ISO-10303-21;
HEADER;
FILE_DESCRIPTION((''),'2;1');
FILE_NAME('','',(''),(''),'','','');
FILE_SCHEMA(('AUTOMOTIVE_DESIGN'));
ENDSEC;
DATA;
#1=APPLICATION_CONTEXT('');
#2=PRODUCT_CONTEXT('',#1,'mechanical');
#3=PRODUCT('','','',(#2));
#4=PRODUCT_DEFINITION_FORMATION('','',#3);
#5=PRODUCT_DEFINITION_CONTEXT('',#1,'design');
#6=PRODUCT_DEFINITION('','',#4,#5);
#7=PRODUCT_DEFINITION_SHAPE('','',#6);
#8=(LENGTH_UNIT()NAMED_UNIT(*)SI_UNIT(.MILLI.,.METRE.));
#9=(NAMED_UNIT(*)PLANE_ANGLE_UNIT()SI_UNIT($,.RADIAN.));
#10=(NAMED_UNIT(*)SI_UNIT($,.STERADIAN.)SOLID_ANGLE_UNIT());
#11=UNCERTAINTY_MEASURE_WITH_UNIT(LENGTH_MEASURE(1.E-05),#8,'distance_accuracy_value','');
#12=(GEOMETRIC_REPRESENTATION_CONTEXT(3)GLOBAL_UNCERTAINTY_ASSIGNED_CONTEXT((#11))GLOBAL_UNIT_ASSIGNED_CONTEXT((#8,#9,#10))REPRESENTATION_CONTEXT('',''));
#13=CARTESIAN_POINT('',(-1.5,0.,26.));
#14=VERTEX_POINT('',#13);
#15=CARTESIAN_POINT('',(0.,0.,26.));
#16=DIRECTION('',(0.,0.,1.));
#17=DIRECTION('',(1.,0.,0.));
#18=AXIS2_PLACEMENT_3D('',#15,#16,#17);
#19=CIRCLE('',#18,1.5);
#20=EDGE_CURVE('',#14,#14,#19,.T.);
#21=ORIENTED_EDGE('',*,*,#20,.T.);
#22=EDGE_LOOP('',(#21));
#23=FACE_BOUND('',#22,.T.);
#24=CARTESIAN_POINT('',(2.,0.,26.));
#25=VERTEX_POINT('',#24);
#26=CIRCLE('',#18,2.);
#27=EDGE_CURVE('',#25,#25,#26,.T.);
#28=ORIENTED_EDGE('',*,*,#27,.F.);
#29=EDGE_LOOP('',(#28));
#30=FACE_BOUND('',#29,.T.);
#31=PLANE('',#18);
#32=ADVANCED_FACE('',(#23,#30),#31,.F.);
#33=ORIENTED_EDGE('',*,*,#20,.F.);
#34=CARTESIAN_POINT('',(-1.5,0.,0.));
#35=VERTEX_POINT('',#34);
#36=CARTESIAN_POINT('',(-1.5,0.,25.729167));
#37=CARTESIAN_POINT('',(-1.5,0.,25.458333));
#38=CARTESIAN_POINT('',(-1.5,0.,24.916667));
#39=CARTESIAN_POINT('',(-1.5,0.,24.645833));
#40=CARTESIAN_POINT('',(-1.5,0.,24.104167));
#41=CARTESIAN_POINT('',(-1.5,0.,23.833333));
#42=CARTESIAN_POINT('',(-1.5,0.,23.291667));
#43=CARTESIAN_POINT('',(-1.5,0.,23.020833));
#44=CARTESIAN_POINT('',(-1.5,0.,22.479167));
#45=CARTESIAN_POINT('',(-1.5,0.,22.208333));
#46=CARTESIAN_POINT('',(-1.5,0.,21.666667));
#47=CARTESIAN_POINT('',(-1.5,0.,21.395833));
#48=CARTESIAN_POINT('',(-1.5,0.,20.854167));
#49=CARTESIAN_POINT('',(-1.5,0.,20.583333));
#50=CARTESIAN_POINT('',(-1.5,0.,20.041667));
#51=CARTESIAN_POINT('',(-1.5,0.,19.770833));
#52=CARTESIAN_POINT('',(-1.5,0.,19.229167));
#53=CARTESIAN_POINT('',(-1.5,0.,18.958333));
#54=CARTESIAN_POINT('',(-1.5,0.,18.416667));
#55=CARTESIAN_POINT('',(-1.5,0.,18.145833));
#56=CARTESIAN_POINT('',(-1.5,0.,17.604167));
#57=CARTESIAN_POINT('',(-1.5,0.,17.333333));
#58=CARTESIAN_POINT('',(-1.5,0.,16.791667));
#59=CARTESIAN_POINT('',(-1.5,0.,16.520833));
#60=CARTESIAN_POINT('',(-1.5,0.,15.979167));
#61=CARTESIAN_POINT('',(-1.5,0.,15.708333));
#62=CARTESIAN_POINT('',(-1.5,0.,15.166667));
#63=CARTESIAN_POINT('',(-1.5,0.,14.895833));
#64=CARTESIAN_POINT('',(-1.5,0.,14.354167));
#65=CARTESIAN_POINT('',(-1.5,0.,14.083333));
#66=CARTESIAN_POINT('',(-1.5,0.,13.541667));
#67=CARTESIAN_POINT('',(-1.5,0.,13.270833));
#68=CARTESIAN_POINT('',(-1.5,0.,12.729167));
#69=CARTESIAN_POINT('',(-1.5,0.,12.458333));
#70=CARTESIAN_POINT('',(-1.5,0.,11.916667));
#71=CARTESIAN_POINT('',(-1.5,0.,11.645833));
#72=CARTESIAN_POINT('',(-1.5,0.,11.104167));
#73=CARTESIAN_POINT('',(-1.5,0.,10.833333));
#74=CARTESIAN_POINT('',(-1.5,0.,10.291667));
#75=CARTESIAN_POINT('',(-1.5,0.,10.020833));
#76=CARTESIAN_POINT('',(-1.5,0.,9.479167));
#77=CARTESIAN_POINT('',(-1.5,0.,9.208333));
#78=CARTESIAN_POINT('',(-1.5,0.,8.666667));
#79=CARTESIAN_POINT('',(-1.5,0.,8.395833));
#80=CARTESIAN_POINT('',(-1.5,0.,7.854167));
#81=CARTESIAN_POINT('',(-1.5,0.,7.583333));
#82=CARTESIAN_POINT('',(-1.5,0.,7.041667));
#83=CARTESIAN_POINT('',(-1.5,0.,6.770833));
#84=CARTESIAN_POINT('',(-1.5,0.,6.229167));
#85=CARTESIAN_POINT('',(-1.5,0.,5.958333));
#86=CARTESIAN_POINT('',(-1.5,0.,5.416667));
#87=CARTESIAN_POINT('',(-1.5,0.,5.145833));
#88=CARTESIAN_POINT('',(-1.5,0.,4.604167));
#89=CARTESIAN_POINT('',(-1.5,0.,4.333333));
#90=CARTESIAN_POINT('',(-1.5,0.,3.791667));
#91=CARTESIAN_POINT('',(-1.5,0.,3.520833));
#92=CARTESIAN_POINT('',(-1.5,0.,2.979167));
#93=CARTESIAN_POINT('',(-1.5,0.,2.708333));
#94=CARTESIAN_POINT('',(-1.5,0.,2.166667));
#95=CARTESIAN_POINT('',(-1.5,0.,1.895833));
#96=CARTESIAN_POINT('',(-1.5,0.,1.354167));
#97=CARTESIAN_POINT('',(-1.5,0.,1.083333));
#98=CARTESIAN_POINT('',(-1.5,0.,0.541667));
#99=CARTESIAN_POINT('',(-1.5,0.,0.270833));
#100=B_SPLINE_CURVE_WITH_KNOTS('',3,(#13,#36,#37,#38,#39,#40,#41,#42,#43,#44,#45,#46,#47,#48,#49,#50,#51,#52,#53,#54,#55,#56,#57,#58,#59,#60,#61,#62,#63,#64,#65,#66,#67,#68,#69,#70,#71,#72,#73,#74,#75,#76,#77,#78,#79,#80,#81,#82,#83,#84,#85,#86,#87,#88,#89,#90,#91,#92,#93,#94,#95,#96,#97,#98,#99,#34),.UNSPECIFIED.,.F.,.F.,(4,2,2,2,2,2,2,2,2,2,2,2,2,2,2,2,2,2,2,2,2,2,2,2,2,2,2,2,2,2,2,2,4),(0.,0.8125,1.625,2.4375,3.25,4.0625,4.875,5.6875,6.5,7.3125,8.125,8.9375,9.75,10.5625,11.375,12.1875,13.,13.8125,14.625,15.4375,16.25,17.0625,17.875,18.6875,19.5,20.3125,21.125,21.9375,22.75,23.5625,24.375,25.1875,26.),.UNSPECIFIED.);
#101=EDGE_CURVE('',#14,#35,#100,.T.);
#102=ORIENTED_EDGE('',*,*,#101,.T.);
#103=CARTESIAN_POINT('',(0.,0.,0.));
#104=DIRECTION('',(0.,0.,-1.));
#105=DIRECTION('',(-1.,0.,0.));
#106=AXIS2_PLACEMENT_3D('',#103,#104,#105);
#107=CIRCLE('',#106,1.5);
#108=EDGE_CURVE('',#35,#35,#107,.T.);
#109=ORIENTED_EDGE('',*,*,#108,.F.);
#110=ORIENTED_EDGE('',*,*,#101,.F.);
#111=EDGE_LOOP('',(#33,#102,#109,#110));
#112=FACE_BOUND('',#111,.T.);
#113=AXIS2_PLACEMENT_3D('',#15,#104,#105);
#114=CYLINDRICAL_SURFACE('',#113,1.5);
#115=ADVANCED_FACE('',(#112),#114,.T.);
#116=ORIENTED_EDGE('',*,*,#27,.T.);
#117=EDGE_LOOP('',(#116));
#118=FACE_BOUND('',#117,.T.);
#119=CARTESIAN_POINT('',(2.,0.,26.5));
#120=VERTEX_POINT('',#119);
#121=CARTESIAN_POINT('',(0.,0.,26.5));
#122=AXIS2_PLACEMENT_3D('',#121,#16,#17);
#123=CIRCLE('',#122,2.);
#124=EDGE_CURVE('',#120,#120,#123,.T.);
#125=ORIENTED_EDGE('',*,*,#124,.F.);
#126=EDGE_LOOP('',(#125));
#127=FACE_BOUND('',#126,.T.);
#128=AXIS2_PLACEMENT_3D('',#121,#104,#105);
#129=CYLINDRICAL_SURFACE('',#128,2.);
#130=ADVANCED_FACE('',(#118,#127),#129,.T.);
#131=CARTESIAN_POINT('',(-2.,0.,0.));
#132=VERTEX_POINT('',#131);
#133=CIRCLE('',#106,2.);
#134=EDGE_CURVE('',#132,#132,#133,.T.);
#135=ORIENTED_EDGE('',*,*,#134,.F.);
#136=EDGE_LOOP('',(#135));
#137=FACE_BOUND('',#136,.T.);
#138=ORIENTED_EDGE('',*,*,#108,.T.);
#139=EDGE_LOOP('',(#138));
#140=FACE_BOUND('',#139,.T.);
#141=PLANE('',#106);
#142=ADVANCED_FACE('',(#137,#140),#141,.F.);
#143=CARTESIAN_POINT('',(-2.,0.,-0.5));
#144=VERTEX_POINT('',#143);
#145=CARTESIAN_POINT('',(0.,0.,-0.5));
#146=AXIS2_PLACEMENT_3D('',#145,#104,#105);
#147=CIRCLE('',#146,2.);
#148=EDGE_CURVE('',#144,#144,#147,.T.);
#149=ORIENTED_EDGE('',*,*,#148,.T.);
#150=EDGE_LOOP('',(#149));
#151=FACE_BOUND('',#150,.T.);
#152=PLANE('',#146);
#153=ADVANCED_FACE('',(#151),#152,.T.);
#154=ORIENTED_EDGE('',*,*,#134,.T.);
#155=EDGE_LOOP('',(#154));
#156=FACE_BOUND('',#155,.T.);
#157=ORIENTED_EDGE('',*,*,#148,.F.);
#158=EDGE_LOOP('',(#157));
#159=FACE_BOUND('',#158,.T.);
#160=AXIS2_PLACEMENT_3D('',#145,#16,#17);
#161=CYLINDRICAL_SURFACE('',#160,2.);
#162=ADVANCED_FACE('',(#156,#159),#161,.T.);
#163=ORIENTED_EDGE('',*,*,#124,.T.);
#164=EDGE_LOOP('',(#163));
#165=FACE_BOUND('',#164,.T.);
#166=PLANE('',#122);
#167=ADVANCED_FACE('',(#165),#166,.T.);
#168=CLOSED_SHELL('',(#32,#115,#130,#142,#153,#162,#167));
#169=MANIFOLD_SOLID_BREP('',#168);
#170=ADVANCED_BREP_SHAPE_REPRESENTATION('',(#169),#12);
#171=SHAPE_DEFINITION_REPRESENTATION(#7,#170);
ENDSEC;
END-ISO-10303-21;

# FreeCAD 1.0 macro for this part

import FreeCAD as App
import Part
import Sketcher
Q = App.Units.Quantity

doc = App.newDocument("Part")
params = doc.addObject("Spreadsheet::Sheet", "Params")
for row, (alias, value) in enumerate([
    ("sketch1_diameter", "3 mm"),
    ("pad1_length", "26 mm"),
    ("sketch2_diameter", "4 mm"),
    ("pad2_length", "0.5 mm"),
    ("sketch3_diameter", "4 mm"),
    ("pad3_length", "0.5 mm"),
], start=1):
    params.set(f"A{row}", alias)
    params.set(f"B{row}", "=" + value)
    params.setAlias(f"B{row}", alias)

body = doc.addObject("PartDesign::Body", "Body")

# Sketch on XY plane
sketch1 = body.newObject("Sketcher::SketchObject", "Sketch")
sketch1.AttachmentSupport = (doc.getObject("XY_Plane"), [""])
sketch1.MapMode = "FlatFace"
sketch1.addGeometry(Part.Circle(App.Vector(0, 0, 0), App.Vector(0, 0, 1), 1.5), False)
sketch1.addConstraint([
    Sketcher.Constraint("Coincident", 0, 3, -1, 1),
    Sketcher.Constraint("Diameter", 0, Q("3 mm")),
])
sketch1.setExpression("Constraints[1]", "Params.sketch1_diameter")
pad1 = body.newObject("PartDesign::Pad", "Pad")
pad1.Profile = sketch1
pad1.setExpression("Length", "Params.pad1_length")

# Sketch on XY plane
sketch2 = body.newObject("Sketcher::SketchObject", "Sketch001")
sketch2.AttachmentSupport = (doc.getObject("XY_Plane"), [""])
sketch2.MapMode = "FlatFace"
sketch2.AttachmentOffset = App.Placement(App.Vector(0, 0, 26), App.Rotation())
sketch2.addGeometry(Part.Circle(App.Vector(0, 0, 0), App.Vector(0, 0, 1), 2), False)
sketch2.addConstraint([
    Sketcher.Constraint("Coincident", 0, 3, -1, 1),
    Sketcher.Constraint("Diameter", 0, Q("4 mm")),
])
sketch2.setExpression("Constraints[1]", "Params.sketch2_diameter")
pad2 = body.newObject("PartDesign::Pad", "Pad001")
pad2.Profile = sketch2
pad2.setExpression("Length", "Params.pad2_length")

# Sketch on XY plane
sketch3 = body.newObject("Sketcher::SketchObject", "Sketch002")
sketch3.AttachmentSupport = (doc.getObject("XY_Plane"), [""])
sketch3.MapMode = "FlatFace"
sketch3.AttachmentOffset = App.Placement(App.Vector(0, 0, -0.5), App.Rotation())
sketch3.addGeometry(Part.Circle(App.Vector(0, 0, 0), App.Vector(0, 0, 1), 2), False)
sketch3.addConstraint([
    Sketcher.Constraint("Coincident", 0, 3, -1, 1),
    Sketcher.Constraint("Diameter", 0, Q("4 mm")),
])
sketch3.setExpression("Constraints[1]", "Params.sketch3_diameter")
pad3 = body.newObject("PartDesign::Pad", "Pad002")
pad3.Profile = sketch3
pad3.setExpression("Length", "Params.pad3_length")

doc.recompute()
